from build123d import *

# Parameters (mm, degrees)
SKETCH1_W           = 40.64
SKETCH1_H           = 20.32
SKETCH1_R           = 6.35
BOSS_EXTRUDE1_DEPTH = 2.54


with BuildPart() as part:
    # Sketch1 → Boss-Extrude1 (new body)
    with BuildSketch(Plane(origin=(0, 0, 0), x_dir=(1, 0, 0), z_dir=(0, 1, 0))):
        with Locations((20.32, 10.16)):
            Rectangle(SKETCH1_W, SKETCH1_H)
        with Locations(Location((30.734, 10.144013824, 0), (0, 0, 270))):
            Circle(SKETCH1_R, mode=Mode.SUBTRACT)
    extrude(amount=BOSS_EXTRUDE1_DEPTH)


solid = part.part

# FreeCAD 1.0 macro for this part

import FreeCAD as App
import Part
import Sketcher
Q = App.Units.Quantity

doc = App.newDocument("Part")
body = doc.addObject("PartDesign::Body", "Body")

sketch1 = body.newObject("Sketcher::SketchObject", "Sketch")
sketch1.AttachmentSupport = (doc.getObject("XZ_Plane"), [""])
sketch1.MapMode = "FlatFace"
sketch1.addGeometry([
    Part.LineSegment(App.Vector(0, -20, 0), App.Vector(0, 0, 0)),
    Part.LineSegment(App.Vector(0, 0, 0), App.Vector(41, 0, 0)),
    Part.LineSegment(App.Vector(41, 0, 0), App.Vector(41, -20, 0)),
    Part.LineSegment(App.Vector(41, -20, 0), App.Vector(0, -20, 0)),
    Part.Circle(App.Vector(31, -10, 0), App.Vector(0, 0, 1), 6),
], False)
sketch1.addConstraint([
    Sketcher.Constraint("Coincident", 0, 2, 1, 1),
    Sketcher.Constraint("Coincident", 1, 2, 2, 1),
    Sketcher.Constraint("Coincident", 2, 2, 3, 1),
    Sketcher.Constraint("Coincident", 3, 2, 0, 1),
    Sketcher.Constraint("Vertical", 0),
    Sketcher.Constraint("Horizontal", 1),
    Sketcher.Constraint("Vertical", 2),
    Sketcher.Constraint("Horizontal", 3),
    Sketcher.Constraint("Coincident", 0, 2, -1, 1),
    Sketcher.Constraint("Diameter", 4, Q("0.5 in")),
    Sketcher.Constraint("DistanceX", 1, 1, 1, 2, Q("1.6 in")),
    Sketcher.Constraint("DistanceY", 0, 1, 0, 2, Q("0.8 in")),
    Sketcher.Constraint("DistanceX", -1, 1, 4, 3, Q("1.21 in")),
    Sketcher.Constraint("DistanceY", 4, 3, -1, 1, Q("10.144014 mm")),
])
pad1 = body.newObject("PartDesign::Pad", "Pad")
pad1.Profile = sketch1
pad1.Length = Q("0.1 in")
pad1.Reversed = True

doc.recompute()
